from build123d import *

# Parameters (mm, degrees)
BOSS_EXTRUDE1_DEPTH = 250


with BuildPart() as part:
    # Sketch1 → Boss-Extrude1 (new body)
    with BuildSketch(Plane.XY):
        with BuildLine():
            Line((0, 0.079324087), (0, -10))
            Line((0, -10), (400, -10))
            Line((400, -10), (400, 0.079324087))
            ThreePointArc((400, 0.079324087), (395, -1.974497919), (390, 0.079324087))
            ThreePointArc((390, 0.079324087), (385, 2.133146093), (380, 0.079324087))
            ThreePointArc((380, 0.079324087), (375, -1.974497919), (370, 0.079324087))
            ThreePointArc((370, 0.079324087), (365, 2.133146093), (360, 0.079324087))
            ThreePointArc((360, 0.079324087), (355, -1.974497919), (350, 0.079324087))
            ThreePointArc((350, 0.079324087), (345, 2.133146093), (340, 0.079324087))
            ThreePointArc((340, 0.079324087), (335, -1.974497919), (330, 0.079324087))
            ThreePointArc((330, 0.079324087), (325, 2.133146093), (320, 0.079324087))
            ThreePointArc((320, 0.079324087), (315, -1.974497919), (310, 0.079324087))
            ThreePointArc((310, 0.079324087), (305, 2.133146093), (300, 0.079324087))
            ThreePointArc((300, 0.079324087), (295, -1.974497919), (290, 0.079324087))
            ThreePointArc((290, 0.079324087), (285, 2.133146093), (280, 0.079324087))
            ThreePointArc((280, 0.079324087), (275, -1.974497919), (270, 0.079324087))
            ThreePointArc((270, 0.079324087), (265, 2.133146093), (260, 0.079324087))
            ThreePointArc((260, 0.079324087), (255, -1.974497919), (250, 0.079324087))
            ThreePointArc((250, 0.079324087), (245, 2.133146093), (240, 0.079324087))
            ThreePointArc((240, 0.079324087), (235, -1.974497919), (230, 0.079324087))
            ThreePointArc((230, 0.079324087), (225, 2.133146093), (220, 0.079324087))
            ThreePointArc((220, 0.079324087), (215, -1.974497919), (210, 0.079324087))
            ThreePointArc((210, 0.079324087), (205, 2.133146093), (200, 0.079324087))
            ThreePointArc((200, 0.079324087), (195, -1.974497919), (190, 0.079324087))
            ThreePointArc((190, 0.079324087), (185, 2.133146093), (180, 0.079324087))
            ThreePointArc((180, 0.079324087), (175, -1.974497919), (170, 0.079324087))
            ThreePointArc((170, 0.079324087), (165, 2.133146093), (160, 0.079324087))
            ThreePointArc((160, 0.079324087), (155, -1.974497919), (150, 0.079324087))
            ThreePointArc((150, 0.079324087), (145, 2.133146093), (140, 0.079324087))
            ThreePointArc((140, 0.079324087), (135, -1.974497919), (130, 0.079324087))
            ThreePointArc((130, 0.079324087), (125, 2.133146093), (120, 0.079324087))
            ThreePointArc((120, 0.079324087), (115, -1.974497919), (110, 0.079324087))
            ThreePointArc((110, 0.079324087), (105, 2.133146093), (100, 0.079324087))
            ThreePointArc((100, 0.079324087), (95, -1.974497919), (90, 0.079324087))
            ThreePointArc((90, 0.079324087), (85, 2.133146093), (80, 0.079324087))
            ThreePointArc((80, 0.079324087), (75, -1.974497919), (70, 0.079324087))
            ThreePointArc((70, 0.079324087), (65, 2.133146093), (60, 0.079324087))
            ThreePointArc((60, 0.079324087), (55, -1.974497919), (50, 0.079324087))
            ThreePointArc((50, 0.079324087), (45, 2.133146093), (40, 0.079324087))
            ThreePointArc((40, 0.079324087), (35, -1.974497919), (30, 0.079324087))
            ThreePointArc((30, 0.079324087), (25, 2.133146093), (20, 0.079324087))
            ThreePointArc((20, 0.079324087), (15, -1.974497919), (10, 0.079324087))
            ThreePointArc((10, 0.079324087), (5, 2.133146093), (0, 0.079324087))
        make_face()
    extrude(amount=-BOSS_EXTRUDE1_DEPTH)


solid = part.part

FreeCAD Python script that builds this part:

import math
import FreeCAD as App
import Part
import Sketcher

V = App.Vector
Q = App.Units.Quantity

doc = App.newDocument("Part")
body = doc.addObject("PartDesign::Body", "Body")

# Sketch on XY plane
sketch1 = body.newObject("Sketcher::SketchObject", "Sketch")
sketch1.AttachmentSupport = (doc.getObject("XY_Plane"), [""])
sketch1.MapMode = "FlatFace"
sketch1.addGeometry(Part.LineSegment(V(0, 0, 0), V(0, -10, 0)), False)
sketch1.addGeometry(Part.LineSegment(V(0, -10, 0), V(400, -10, 0)), False)
sketch1.addGeometry(Part.LineSegment(V(400, -10, 0), V(400, 0, 0)), False)
sketch1.addGeometry(Part.ArcOfCircle(Part.Circle(V(395, 5, 0), V(0, 0, 1), 7), math.radians(-135), math.radians(-45)), False)
sketch1.addGeometry(Part.ArcOfCircle(Part.Circle(V(385, -5, 0), V(0, 0, 1), 7), math.radians(45), math.radians(135)), False)
sketch1.addGeometry(Part.ArcOfCircle(Part.Circle(V(375, 5, 0), V(0, 0, 1), 7), math.radians(-135), math.radians(-45)), False)
sketch1.addGeometry(Part.ArcOfCircle(Part.Circle(V(365, -5, 0), V(0, 0, 1), 7), math.radians(45), math.radians(135)), False)
sketch1.addGeometry(Part.ArcOfCircle(Part.Circle(V(355, 5, 0), V(0, 0, 1), 7), math.radians(-135), math.radians(-45)), False)
sketch1.addGeometry(Part.ArcOfCircle(Part.Circle(V(345, -5, 0), V(0, 0, 1), 7), math.radians(45), math.radians(135)), False)
sketch1.addGeometry(Part.ArcOfCircle(Part.Circle(V(335, 5, 0), V(0, 0, 1), 7), math.radians(-135), math.radians(-45)), False)
sketch1.addGeometry(Part.ArcOfCircle(Part.Circle(V(325, -5, 0), V(0, 0, 1), 7), math.radians(45), math.radians(135)), False)
sketch1.addGeometry(Part.ArcOfCircle(Part.Circle(V(315, 5, 0), V(0, 0, 1), 7), math.radians(-135), math.radians(-45)), False)
sketch1.addGeometry(Part.ArcOfCircle(Part.Circle(V(305, -5, 0), V(0, 0, 1), 7), math.radians(45), math.radians(135)), False)
sketch1.addGeometry(Part.ArcOfCircle(Part.Circle(V(295, 5, 0), V(0, 0, 1), 7), math.radians(-135), math.radians(-45)), False)
sketch1.addGeometry(Part.ArcOfCircle(Part.Circle(V(285, -5, 0), V(0, 0, 1), 7), math.radians(45), math.radians(135)), False)
sketch1.addGeometry(Part.ArcOfCircle(Part.Circle(V(275, 5, 0), V(0, 0, 1), 7), math.radians(-135), math.radians(-45)), False)
sketch1.addGeometry(Part.ArcOfCircle(Part.Circle(V(265, -5, 0), V(0, 0, 1), 7), math.radians(45), math.radians(135)), False)
sketch1.addGeometry(Part.ArcOfCircle(Part.Circle(V(255, 5, 0), V(0, 0, 1), 7), math.radians(-135), math.radians(-45)), False)
sketch1.addGeometry(Part.ArcOfCircle(Part.Circle(V(245, -5, 0), V(0, 0, 1), 7), math.radians(45), math.radians(135)), False)
sketch1.addGeometry(Part.ArcOfCircle(Part.Circle(V(235, 5, 0), V(0, 0, 1), 7), math.radians(-135), math.radians(-45)), False)
sketch1.addGeometry(Part.ArcOfCircle(Part.Circle(V(225, -5, 0), V(0, 0, 1), 7), math.radians(45), math.radians(135)), False)
sketch1.addGeometry(Part.ArcOfCircle(Part.Circle(V(215, 5, 0), V(0, 0, 1), 7), math.radians(-135), math.radians(-45)), False)
sketch1.addGeometry(Part.ArcOfCircle(Part.Circle(V(205, -5, 0), V(0, 0, 1), 7), math.radians(45), math.radians(135)), False)
sketch1.addGeometry(Part.ArcOfCircle(Part.Circle(V(195, 5, 0), V(0, 0, 1), 7), math.radians(-135), math.radians(-45)), False)
sketch1.addGeometry(Part.ArcOfCircle(Part.Circle(V(185, -5, 0), V(0, 0, 1), 7), math.radians(45), math.radians(135)), False)
sketch1.addGeometry(Part.ArcOfCircle(Part.Circle(V(175, 5, 0), V(0, 0, 1), 7), math.radians(-135), math.radians(-45)), False)
sketch1.addGeometry(Part.ArcOfCircle(Part.Circle(V(165, -5, 0), V(0, 0, 1), 7), math.radians(45), math.radians(135)), False)
sketch1.addGeometry(Part.ArcOfCircle(Part.Circle(V(155, 5, 0), V(0, 0, 1), 7), math.radians(-135), math.radians(-45)), False)
sketch1.addGeometry(Part.ArcOfCircle(Part.Circle(V(145, -5, 0), V(0, 0, 1), 7), math.radians(45), math.radians(135)), False)
sketch1.addGeometry(Part.ArcOfCircle(Part.Circle(V(135, 5, 0), V(0, 0, 1), 7), math.radians(-135), math.radians(-45)), False)
sketch1.addGeometry(Part.ArcOfCircle(Part.Circle(V(125, -5, 0), V(0, 0, 1), 7), math.radians(45), math.radians(135)), False)
sketch1.addGeometry(Part.ArcOfCircle(Part.Circle(V(115, 5, 0), V(0, 0, 1), 7), math.radians(-135), math.radians(-45)), False)
sketch1.addGeometry(Part.ArcOfCircle(Part.Circle(V(105, -5, 0), V(0, 0, 1), 7), math.radians(45), math.radians(135)), False)
sketch1.addGeometry(Part.ArcOfCircle(Part.Circle(V(95, 5, 0), V(0, 0, 1), 7), math.radians(-135), math.radians(-45)), False)
sketch1.addGeometry(Part.ArcOfCircle(Part.Circle(V(85, -5, 0), V(0, 0, 1), 7), math.radians(45), math.radians(135)), False)
sketch1.addGeometry(Part.ArcOfCircle(Part.Circle(V(75, 5, 0), V(0, 0, 1), 7), math.radians(-135), math.radians(-45)), False)
sketch1.addGeometry(Part.ArcOfCircle(Part.Circle(V(65, -5, 0), V(0, 0, 1), 7), math.radians(45), math.radians(135)), False)
sketch1.addGeometry(Part.ArcOfCircle(Part.Circle(V(55, 5, 0), V(0, 0, 1), 7), math.radians(-135), math.radians(-45)), False)
sketch1.addGeometry(Part.ArcOfCircle(Part.Circle(V(45, -5, 0), V(0, 0, 1), 7), math.radians(45), math.radians(135)), False)
sketch1.addGeometry(Part.ArcOfCircle(Part.Circle(V(35, 5, 0), V(0, 0, 1), 7), math.radians(-135), math.radians(-45)), False)
sketch1.addGeometry(Part.ArcOfCircle(Part.Circle(V(25, -5, 0), V(0, 0, 1), 7), math.radians(45), math.radians(135)), False)
sketch1.addGeometry(Part.ArcOfCircle(Part.Circle(V(15, 5, 0), V(0, 0, 1), 7), math.radians(-135), math.radians(-45)), False)
sketch1.addGeometry(Part.ArcOfCircle(Part.Circle(V(5, -5, 0), V(0, 0, 1), 7), math.radians(45), math.radians(135)), False)
sketch1.addConstraint(Sketcher.Constraint("Coincident", 0, 2, 1, 1))
sketch1.addConstraint(Sketcher.Constraint("Coincident", 1, 2, 2, 1))
sketch1.addConstraint(Sketcher.Constraint("Coincident", 2, 2, 3, 2))
sketch1.addConstraint(Sketcher.Constraint("Tangent", 3, 1, 4, 1))
sketch1.addConstraint(Sketcher.Constraint("Tangent", 4, 2, 5, 2))
sketch1.addConstraint(Sketcher.Constraint("Tangent", 5, 1, 6, 1))
sketch1.addConstraint(Sketcher.Constraint("Tangent", 6, 2, 7, 2))
sketch1.addConstraint(Sketcher.Constraint("Tangent", 7, 1, 8, 1))
sketch1.addConstraint(Sketcher.Constraint("Tangent", 8, 2, 9, 2))
sketch1.addConstraint(Sketcher.Constraint("Tangent", 9, 1, 10, 1))
sketch1.addConstraint(Sketcher.Constraint("Tangent", 10, 2, 11, 2))
sketch1.addConstraint(Sketcher.Constraint("Tangent", 11, 1, 12, 1))
sketch1.addConstraint(Sketcher.Constraint("Tangent", 12, 2, 13, 2))
sketch1.addConstraint(Sketcher.Constraint("Tangent", 13, 1, 14, 1))
sketch1.addConstraint(Sketcher.Constraint("Tangent", 14, 2, 15, 2))
sketch1.addConstraint(Sketcher.Constraint("Tangent", 15, 1, 16, 1))
sketch1.addConstraint(Sketcher.Constraint("Tangent", 16, 2, 17, 2))
sketch1.addConstraint(Sketcher.Constraint("Tangent", 17, 1, 18, 1))
sketch1.addConstraint(Sketcher.Constraint("Tangent", 18, 2, 19, 2))
sketch1.addConstraint(Sketcher.Constraint("Tangent", 19, 1, 20, 1))
sketch1.addConstraint(Sketcher.Constraint("Tangent", 20, 2, 21, 2))
sketch1.addConstraint(Sketcher.Constraint("Tangent", 21, 1, 22, 1))
sketch1.addConstraint(Sketcher.Constraint("Tangent", 22, 2, 23, 2))
sketch1.addConstraint(Sketcher.Constraint("Tangent", 23, 1, 24, 1))
sketch1.addConstraint(Sketcher.Constraint("Tangent", 24, 2, 25, 2))
sketch1.addConstraint(Sketcher.Constraint("Tangent", 25, 1, 26, 1))
sketch1.addConstraint(Sketcher.Constraint("Tangent", 26, 2, 27, 2))
sketch1.addConstraint(Sketcher.Constraint("Tangent", 27, 1, 28, 1))
sketch1.addConstraint(Sketcher.Constraint("Tangent", 28, 2, 29, 2))
sketch1.addConstraint(Sketcher.Constraint("Tangent", 29, 1, 30, 1))
sketch1.addConstraint(Sketcher.Constraint("Tangent", 30, 2, 31, 2))
sketch1.addConstraint(Sketcher.Constraint("Tangent", 31, 1, 32, 1))
sketch1.addConstraint(Sketcher.Constraint("Tangent", 32, 2, 33, 2))
sketch1.addConstraint(Sketcher.Constraint("Tangent", 33, 1, 34, 1))
sketch1.addConstraint(Sketcher.Constraint("Tangent", 34, 2, 35, 2))
sketch1.addConstraint(Sketcher.Constraint("Tangent", 35, 1, 36, 1))
sketch1.addConstraint(Sketcher.Constraint("Tangent", 36, 2, 37, 2))
sketch1.addConstraint(Sketcher.Constraint("Tangent", 37, 1, 38, 1))
sketch1.addConstraint(Sketcher.Constraint("Tangent", 38, 2, 39, 2))
sketch1.addConstraint(Sketcher.Constraint("Tangent", 39, 1, 40, 1))
sketch1.addConstraint(Sketcher.Constraint("Tangent", 40, 2, 41, 2))
sketch1.addConstraint(Sketcher.Constraint("Tangent", 41, 1, 42, 1))
sketch1.addConstraint(Sketcher.Constraint("Coincident", 42, 2, 0, 1))
sketch1.addConstraint(Sketcher.Constraint("Vertical", 0))
sketch1.addConstraint(Sketcher.Constraint("Horizontal", 1))
sketch1.addConstraint(Sketcher.Constraint("Vertical", 2))
sketch1.addConstraint(Sketcher.Constraint("Equal", 3, 4))
sketch1.addConstraint(Sketcher.Constraint("Equal", 4, 5))
sketch1.addConstraint(Sketcher.Constraint("Equal", 5, 6))
sketch1.addConstraint(Sketcher.Constraint("Equal", 6, 7))
sketch1.addConstraint(Sketcher.Constraint("Equal", 7, 8))
sketch1.addConstraint(Sketcher.Constraint("Equal", 8, 9))
sketch1.addConstraint(Sketcher.Constraint("Equal", 9, 10))
sketch1.addConstraint(Sketcher.Constraint("Equal", 10, 11))
sketch1.addConstraint(Sketcher.Constraint("Equal", 11, 12))
sketch1.addConstraint(Sketcher.Constraint("Equal", 12, 13))
sketch1.addConstraint(Sketcher.Constraint("Equal", 13, 14))
sketch1.addConstraint(Sketcher.Constraint("Equal", 14, 15))
sketch1.addConstraint(Sketcher.Constraint("Equal", 15, 16))
sketch1.addConstraint(Sketcher.Constraint("Equal", 16, 17))
sketch1.addConstraint(Sketcher.Constraint("Equal", 17, 18))
sketch1.addConstraint(Sketcher.Constraint("Equal", 18, 19))
sketch1.addConstraint(Sketcher.Constraint("Equal", 19, 20))
sketch1.addConstraint(Sketcher.Constraint("Equal", 20, 21))
sketch1.addConstraint(Sketcher.Constraint("Equal", 21, 22))
sketch1.addConstraint(Sketcher.Constraint("Equal", 22, 23))
sketch1.addConstraint(Sketcher.Constraint("Equal", 23, 24))
sketch1.addConstraint(Sketcher.Constraint("Equal", 24, 25))
sketch1.addConstraint(Sketcher.Constraint("Equal", 25, 26))
sketch1.addConstraint(Sketcher.Constraint("Equal", 26, 27))
sketch1.addConstraint(Sketcher.Constraint("Equal", 27, 28))
sketch1.addConstraint(Sketcher.Constraint("Equal", 28, 29))
sketch1.addConstraint(Sketcher.Constraint("Equal", 29, 30))
sketch1.addConstraint(Sketcher.Constraint("Equal", 30, 31))
sketch1.addConstraint(Sketcher.Constraint("Equal", 31, 32))
sketch1.addConstraint(Sketcher.Constraint("Equal", 32, 33))
sketch1.addConstraint(Sketcher.Constraint("Equal", 33, 34))
sketch1.addConstraint(Sketcher.Constraint("Equal", 34, 35))
sketch1.addConstraint(Sketcher.Constraint("Equal", 35, 36))
sketch1.addConstraint(Sketcher.Constraint("Equal", 36, 37))
sketch1.addConstraint(Sketcher.Constraint("Equal", 37, 38))
sketch1.addConstraint(Sketcher.Constraint("Equal", 38, 39))
sketch1.addConstraint(Sketcher.Constraint("Equal", 39, 40))
sketch1.addConstraint(Sketcher.Constraint("Equal", 40, 41))
sketch1.addConstraint(Sketcher.Constraint("Equal", 41, 42))
sketch1.addConstraint(Sketcher.Constraint("PointOnObject", 0, 2, -2))
sketch1.addConstraint(Sketcher.Constraint("Horizontal", 3, 3, 5, 3))
sketch1.addConstraint(Sketcher.Constraint("Horizontal", 4, 3, 6, 3))
sketch1.addConstraint(Sketcher.Constraint("Horizontal", 5, 3, 7, 3))
sketch1.addConstraint(Sketcher.Constraint("Horizontal", 6, 3, 8, 3))
sketch1.addConstraint(Sketcher.Constraint("Horizontal", 7, 3, 9, 3))
sketch1.addConstraint(Sketcher.Constraint("Horizontal", 8, 3, 10, 3))
sketch1.addConstraint(Sketcher.Constraint("Horizontal", 9, 3, 11, 3))
sketch1.addConstraint(Sketcher.Constraint("Horizontal", 10, 3, 12, 3))
sketch1.addConstraint(Sketcher.Constraint("Horizontal", 11, 3, 13, 3))
sketch1.addConstraint(Sketcher.Constraint("Horizontal", 12, 3, 14, 3))
sketch1.addConstraint(Sketcher.Constraint("Horizontal", 13, 3, 15, 3))
sketch1.addConstraint(Sketcher.Constraint("Horizontal", 14, 3, 16, 3))
sketch1.addConstraint(Sketcher.Constraint("Horizontal", 15, 3, 17, 3))
sketch1.addConstraint(Sketcher.Constraint("Horizontal", 16, 3, 18, 3))
sketch1.addConstraint(Sketcher.Constraint("Horizontal", 17, 3, 19, 3))
sketch1.addConstraint(Sketcher.Constraint("Horizontal", 18, 3, 20, 3))
sketch1.addConstraint(Sketcher.Constraint("Horizontal", 19, 3, 21, 3))
sketch1.addConstraint(Sketcher.Constraint("Horizontal", 20, 3, 22, 3))
sketch1.addConstraint(Sketcher.Constraint("Horizontal", 21, 3, 23, 3))
sketch1.addConstraint(Sketcher.Constraint("Horizontal", 22, 3, 24, 3))
sketch1.addConstraint(Sketcher.Constraint("Horizontal", 23, 3, 25, 3))
sketch1.addConstraint(Sketcher.Constraint("Horizontal", 24, 3, 26, 3))
sketch1.addConstraint(Sketcher.Constraint("Horizontal", 25, 3, 27, 3))
sketch1.addConstraint(Sketcher.Constraint("Horizontal", 26, 3, 28, 3))
sketch1.addConstraint(Sketcher.Constraint("Horizontal", 27, 3, 29, 3))
sketch1.addConstraint(Sketcher.Constraint("Horizontal", 28, 3, 30, 3))
sketch1.addConstraint(Sketcher.Constraint("Horizontal", 29, 3, 31, 3))
sketch1.addConstraint(Sketcher.Constraint("Horizontal", 30, 3, 32, 3))
sketch1.addConstraint(Sketcher.Constraint("Horizontal", 31, 3, 33, 3))
sketch1.addConstraint(Sketcher.Constraint("Horizontal", 32, 3, 34, 3))
sketch1.addConstraint(Sketcher.Constraint("Horizontal", 33, 3, 35, 3))
sketch1.addConstraint(Sketcher.Constraint("Horizontal", 34, 3, 36, 3))
sketch1.addConstraint(Sketcher.Constraint("Horizontal", 35, 3, 37, 3))
sketch1.addConstraint(Sketcher.Constraint("Horizontal", 36, 3, 38, 3))
sketch1.addConstraint(Sketcher.Constraint("Horizontal", 37, 3, 39, 3))
sketch1.addConstraint(Sketcher.Constraint("Horizontal", 38, 3, 40, 3))
sketch1.addConstraint(Sketcher.Constraint("Horizontal", 39, 3, 41, 3))
sketch1.addConstraint(Sketcher.Constraint("Horizontal", 40, 3, 42, 3))
sketch1.addConstraint(Sketcher.Constraint("Horizontal", 2, 2, 3, 1))
sketch1.addConstraint(Sketcher.Constraint("Horizontal", 41, 1, 42, 2))
sketch1.addConstraint(Sketcher.Constraint("DistanceX", 1, 1, 1, 2, Q("400 mm")))
sketch1.addConstraint(Sketcher.Constraint("DistanceY", 0, 2, -1, 1, Q("10 mm")))
sketch1.addConstraint(Sketcher.Constraint("Radius", 3, Q("7.113125 mm")))
sketch1.addConstraint(Sketcher.Constraint("DistanceY", 0, 2, 0, 1, Q("10.079324 mm")))
pad1 = body.newObject("PartDesign::Pad", "Pad")
pad1.Profile = sketch1
pad1.Length = 250
pad1.Reversed = True

doc.recompute()
